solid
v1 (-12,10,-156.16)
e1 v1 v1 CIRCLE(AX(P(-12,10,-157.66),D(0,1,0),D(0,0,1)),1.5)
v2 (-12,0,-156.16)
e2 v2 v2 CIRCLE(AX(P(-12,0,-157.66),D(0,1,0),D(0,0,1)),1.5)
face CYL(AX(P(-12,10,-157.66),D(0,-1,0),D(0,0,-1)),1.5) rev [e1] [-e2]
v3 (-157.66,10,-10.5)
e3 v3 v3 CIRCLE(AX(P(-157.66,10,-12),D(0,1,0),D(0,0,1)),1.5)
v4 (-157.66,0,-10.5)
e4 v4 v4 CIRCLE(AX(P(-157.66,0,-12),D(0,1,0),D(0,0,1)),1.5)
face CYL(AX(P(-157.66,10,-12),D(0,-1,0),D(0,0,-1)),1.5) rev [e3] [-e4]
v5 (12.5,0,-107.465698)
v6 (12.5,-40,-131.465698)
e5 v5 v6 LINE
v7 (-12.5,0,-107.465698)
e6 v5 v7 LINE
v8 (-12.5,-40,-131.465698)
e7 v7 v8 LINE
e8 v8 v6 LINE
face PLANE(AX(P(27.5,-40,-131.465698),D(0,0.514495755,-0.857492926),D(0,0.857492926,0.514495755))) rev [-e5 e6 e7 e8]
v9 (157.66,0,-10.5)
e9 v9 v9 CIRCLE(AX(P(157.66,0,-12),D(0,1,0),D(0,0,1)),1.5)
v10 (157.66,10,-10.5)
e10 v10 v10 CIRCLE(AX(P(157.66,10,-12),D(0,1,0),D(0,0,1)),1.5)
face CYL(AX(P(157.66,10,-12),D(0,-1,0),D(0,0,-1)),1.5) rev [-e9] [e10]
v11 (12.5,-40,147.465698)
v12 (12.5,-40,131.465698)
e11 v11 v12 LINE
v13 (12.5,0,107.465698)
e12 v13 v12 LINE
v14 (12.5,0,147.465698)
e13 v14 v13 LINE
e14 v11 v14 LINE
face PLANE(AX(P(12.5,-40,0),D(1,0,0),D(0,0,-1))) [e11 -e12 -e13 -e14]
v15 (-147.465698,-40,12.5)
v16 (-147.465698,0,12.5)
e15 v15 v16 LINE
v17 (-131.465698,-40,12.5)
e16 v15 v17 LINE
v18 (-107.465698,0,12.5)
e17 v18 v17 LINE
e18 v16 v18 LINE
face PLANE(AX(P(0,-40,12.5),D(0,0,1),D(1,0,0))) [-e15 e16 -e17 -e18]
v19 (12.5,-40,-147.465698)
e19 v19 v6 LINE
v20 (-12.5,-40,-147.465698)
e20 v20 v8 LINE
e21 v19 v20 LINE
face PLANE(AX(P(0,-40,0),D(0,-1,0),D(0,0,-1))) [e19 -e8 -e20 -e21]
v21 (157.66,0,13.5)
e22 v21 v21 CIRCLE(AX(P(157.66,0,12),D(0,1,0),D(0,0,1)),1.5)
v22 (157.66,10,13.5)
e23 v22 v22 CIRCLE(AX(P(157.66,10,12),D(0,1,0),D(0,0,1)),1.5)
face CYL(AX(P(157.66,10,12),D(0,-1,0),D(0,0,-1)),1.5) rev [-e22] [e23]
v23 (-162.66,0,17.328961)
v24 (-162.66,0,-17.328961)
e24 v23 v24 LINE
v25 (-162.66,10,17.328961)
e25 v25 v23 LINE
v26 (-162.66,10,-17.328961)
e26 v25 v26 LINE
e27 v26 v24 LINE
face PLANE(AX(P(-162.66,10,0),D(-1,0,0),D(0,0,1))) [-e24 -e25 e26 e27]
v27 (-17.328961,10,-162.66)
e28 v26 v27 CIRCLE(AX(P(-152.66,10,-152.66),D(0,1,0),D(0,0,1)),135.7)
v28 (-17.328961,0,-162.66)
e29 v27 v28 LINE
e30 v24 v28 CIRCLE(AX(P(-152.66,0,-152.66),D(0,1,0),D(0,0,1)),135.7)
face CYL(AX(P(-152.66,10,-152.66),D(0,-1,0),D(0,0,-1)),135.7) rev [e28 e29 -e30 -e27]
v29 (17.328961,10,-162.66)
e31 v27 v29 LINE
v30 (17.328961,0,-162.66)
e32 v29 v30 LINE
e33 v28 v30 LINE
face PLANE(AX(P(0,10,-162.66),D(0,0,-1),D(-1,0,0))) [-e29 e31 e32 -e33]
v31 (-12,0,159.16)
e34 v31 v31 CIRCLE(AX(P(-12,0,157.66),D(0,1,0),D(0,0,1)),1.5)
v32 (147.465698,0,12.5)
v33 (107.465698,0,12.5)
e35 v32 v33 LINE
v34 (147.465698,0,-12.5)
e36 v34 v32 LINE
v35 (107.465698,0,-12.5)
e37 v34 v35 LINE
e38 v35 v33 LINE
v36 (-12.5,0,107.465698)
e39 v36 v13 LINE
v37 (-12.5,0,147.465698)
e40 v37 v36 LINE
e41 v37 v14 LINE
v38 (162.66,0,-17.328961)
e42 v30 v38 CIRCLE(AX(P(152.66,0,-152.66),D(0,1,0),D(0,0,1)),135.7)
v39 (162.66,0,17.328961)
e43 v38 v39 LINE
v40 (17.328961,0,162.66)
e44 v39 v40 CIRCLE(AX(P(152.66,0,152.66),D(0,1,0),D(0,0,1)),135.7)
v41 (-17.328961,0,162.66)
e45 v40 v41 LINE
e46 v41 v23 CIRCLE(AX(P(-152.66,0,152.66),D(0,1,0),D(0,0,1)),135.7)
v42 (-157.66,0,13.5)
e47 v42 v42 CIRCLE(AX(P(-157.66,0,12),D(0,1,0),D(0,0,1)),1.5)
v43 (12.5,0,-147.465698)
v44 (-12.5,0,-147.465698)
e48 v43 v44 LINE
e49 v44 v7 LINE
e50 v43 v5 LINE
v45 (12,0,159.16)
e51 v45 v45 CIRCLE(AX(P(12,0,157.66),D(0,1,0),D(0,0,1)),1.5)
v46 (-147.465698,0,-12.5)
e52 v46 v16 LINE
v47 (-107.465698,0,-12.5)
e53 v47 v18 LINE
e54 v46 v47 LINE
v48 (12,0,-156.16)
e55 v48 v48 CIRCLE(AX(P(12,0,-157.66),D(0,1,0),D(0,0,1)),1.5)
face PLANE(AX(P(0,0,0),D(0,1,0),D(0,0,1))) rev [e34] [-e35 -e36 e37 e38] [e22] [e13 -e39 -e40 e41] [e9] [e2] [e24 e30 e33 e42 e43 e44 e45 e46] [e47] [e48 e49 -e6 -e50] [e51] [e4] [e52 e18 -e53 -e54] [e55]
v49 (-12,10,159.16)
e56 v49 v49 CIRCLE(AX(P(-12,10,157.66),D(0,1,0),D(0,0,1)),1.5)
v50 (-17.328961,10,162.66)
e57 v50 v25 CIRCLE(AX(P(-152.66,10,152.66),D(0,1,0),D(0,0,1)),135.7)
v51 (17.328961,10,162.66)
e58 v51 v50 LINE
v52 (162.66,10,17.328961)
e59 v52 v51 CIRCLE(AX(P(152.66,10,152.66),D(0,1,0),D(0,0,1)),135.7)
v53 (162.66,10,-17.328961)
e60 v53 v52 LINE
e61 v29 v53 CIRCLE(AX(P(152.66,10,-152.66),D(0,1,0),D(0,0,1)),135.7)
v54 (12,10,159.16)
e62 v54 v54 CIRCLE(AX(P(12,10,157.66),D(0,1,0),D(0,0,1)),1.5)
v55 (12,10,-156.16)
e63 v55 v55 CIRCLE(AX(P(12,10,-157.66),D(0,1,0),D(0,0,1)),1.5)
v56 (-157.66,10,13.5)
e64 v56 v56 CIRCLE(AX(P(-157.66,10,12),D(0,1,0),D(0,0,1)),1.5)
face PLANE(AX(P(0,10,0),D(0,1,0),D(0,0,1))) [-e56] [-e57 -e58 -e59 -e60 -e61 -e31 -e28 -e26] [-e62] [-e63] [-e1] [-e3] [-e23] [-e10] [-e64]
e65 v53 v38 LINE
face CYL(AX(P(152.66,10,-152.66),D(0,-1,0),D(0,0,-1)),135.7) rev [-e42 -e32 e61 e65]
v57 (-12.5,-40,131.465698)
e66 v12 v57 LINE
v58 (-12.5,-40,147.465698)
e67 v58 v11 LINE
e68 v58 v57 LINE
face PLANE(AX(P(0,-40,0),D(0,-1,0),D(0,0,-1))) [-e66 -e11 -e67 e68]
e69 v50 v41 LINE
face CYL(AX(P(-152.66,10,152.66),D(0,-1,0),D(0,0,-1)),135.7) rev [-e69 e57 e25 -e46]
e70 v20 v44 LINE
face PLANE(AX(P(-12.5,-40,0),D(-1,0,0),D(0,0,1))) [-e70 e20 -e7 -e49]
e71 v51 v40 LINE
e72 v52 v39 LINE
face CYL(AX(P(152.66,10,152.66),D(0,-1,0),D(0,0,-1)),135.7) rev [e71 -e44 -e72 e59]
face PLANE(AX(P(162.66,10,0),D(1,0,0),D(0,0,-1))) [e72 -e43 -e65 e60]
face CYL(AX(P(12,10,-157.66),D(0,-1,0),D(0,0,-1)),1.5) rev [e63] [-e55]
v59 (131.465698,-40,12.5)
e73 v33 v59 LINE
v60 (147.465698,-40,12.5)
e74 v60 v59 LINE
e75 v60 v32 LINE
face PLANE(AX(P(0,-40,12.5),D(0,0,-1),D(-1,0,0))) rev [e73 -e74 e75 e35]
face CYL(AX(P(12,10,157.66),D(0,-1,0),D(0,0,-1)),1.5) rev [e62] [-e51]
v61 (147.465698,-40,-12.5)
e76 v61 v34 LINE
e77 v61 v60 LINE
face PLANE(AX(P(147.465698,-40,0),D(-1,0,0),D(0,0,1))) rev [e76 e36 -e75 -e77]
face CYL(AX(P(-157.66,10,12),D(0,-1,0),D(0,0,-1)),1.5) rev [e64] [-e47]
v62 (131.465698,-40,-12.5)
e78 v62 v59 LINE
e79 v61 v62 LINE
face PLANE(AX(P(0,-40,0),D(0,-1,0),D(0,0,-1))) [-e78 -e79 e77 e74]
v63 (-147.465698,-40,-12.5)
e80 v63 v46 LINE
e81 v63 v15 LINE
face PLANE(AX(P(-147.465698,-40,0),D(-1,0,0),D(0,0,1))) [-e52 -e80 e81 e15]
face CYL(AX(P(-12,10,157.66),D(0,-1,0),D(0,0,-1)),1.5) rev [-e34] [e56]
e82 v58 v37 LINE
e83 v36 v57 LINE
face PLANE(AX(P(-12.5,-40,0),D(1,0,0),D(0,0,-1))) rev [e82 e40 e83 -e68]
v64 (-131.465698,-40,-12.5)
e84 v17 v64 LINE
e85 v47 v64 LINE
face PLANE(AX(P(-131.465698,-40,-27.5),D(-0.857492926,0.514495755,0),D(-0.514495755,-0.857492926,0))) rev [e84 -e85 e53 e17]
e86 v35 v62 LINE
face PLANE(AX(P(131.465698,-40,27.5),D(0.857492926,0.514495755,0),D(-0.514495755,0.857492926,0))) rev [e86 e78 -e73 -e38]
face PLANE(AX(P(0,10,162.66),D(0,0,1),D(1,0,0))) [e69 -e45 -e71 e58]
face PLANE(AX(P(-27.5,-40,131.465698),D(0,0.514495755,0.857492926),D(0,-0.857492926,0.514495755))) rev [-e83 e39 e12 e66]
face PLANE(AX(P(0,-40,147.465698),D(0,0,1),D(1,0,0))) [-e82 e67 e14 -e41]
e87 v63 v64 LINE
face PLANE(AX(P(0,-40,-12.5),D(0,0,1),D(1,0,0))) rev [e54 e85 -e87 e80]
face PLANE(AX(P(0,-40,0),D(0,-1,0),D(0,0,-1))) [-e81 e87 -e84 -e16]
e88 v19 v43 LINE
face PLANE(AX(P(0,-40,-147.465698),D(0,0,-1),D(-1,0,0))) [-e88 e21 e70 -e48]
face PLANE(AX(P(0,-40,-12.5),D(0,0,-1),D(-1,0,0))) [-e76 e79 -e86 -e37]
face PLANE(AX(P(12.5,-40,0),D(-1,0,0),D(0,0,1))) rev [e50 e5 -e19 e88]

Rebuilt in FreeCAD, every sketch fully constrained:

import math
import FreeCAD as App
import Part
import Sketcher

V = App.Vector
Q = App.Units.Quantity

doc = App.newDocument("Part")
body = doc.addObject("PartDesign::Body", "Body")

sketch1 = body.newObject("Sketcher::SketchObject", "Sketch")
sketch1.AttachmentSupport = (doc.getObject("XZ_Plane"), [""])
sketch1.MapMode = "FlatFace"
sketch1.addGeometry([
    Part.LineSegment(V(162.7, 17.3, 0), V(162.7, -17.3, 0)),
    Part.ArcOfCircle(Part.Circle(V(152.7, -152.7, 0), V(0, 0, 1), 135.7), math.radians(86), math.radians(184)),
    Part.LineSegment(V(17.3, -162.7, 0), V(-17.3, -162.7, 0)),
    Part.ArcOfCircle(Part.Circle(V(-152.7, -152.7, 0), V(0, 0, 1), 135.7), math.radians(-4), math.radians(94)),
    Part.LineSegment(V(-162.7, -17.3, 0), V(-162.7, 17.3, 0)),
    Part.ArcOfCircle(Part.Circle(V(-152.7, 152.7, 0), V(0, 0, 1), 135.7), math.radians(-94), math.radians(4)),
    Part.LineSegment(V(-17.3, 162.7, 0), V(17.3, 162.7, 0)),
    Part.ArcOfCircle(Part.Circle(V(152.7, 152.7, 0), V(0, 0, 1), 135.7), math.radians(176), math.radians(274)),
    Part.Circle(V(-12, 157.7, 0), V(0, 0, 1), 1.5),
    Part.Circle(V(-157.7, 12, 0), V(0, 0, 1), 1.5),
    Part.Circle(V(12, 157.7, 0), V(0, 0, 1), 1.5),
    Part.Circle(V(157.7, 12, 0), V(0, 0, 1), 1.5),
    Part.Circle(V(-157.7, -12, 0), V(0, 0, 1), 1.5),
    Part.Circle(V(-12, -157.7, 0), V(0, 0, 1), 1.5),
    Part.Circle(V(157.7, -12, 0), V(0, 0, 1), 1.5),
    Part.Circle(V(12, -157.7, 0), V(0, 0, 1), 1.5),
], False)
sketch1.addConstraint([
    Sketcher.Constraint("Coincident", 0, 2, 1, 1),
    Sketcher.Constraint("Coincident", 1, 2, 2, 1),
    Sketcher.Constraint("Coincident", 2, 2, 3, 1),
    Sketcher.Constraint("Coincident", 3, 2, 4, 1),
    Sketcher.Constraint("Coincident", 4, 2, 5, 1),
    Sketcher.Constraint("Coincident", 5, 2, 6, 1),
    Sketcher.Constraint("Coincident", 6, 2, 7, 1),
    Sketcher.Constraint("Coincident", 7, 2, 0, 1),
    Sketcher.Constraint("Vertical", 0),
    Sketcher.Constraint("Horizontal", 2),
    Sketcher.Constraint("Vertical", 4),
    Sketcher.Constraint("Horizontal", 6),
    Sketcher.Constraint("Equal", 1, 3),
    Sketcher.Constraint("Equal", 3, 5),
    Sketcher.Constraint("Equal", 5, 7),
    Sketcher.Constraint("Equal", 8, 9),
    Sketcher.Constraint("Equal", 9, 10),
    Sketcher.Constraint("Equal", 10, 11),
    Sketcher.Constraint("Equal", 11, 12),
    Sketcher.Constraint("Equal", 12, 13),
    Sketcher.Constraint("Equal", 13, 14),
    Sketcher.Constraint("Equal", 14, 15),
    Sketcher.Constraint("Symmetric", 1, 3, 5, 3, -1, 1),
    Sketcher.Constraint("Symmetric", 3, 3, 7, 3, -1, 1),
    Sketcher.Constraint("Symmetric", 11, 3, 12, 3, -1, 1),
    Sketcher.Constraint("Symmetric", 10, 3, 13, 3, -1, 1),
    Sketcher.Constraint("Symmetric", 9, 3, 14, 3, -1, 1),
    Sketcher.Constraint("Symmetric", 8, 3, 15, 3, -1, 1),
    Sketcher.Constraint("Symmetric", 1, 3, 3, 3, -2),
    Sketcher.Constraint("Symmetric", 8, 3, 10, 3, -2),
    Sketcher.Constraint("Symmetric", 9, 3, 11, 3, -2),
    Sketcher.Constraint("Horizontal", 0, 2, 3, 2),
    Sketcher.Constraint("Vertical", 2, 2, 5, 2),
    Sketcher.Constraint("Equal", 6, 0),
    Sketcher.Constraint("Diameter", 8, Q("3 mm")),
    Sketcher.Constraint("Radius", 1, Q("135.7 mm")),
    Sketcher.Constraint("DistanceX", 8, 3, -1, 1, Q("12 mm")),
    Sketcher.Constraint("DistanceY", -1, 1, 9, 3, Q("12 mm")),
    Sketcher.Constraint("DistanceY", 5, 3, 8, 3, Q("5 mm")),
    Sketcher.Constraint("DistanceX", 9, 3, 5, 3, Q("5 mm")),
    Sketcher.Constraint("DistanceX", 14, 3, 0, 2, Q("5 mm")),
    Sketcher.Constraint("DistanceY", 1, 2, 15, 3, Q("5 mm")),
    Sketcher.Constraint("DistanceX", -1, 1, 1, 3, Q("152.66 mm")),
])
pad1 = body.newObject("PartDesign::Pad", "Pad")
pad1.Profile = sketch1
pad1.Length = 10
pad1.Reversed = True

sketch2 = body.newObject("Sketcher::SketchObject", "Sketch001")
sketch2.AttachmentSupport = (doc.getObject("XZ_Plane"), [""])
sketch2.MapMode = "FlatFace"
sketch2.addGeometry([
    Part.LineSegment(V(-12, 147, 0), V(-12, 107, 0)),
    Part.LineSegment(V(-12, 107, 0), V(12, 107, 0)),
    Part.LineSegment(V(12, 107, 0), V(12, 147, 0)),
    Part.LineSegment(V(12, 147, 0), V(-12, 147, 0)),
    Part.LineSegment(V(107, 12, 0), V(107, -12, 0)),
    Part.LineSegment(V(107, -12, 0), V(147, -12, 0)),
    Part.LineSegment(V(147, -12, 0), V(147, 12, 0)),
    Part.LineSegment(V(147, 12, 0), V(107, 12, 0)),
    Part.LineSegment(V(-12, -107, 0), V(-12, -147, 0)),
    Part.LineSegment(V(-12, -147, 0), V(12, -147, 0)),
    Part.LineSegment(V(12, -147, 0), V(12, -107, 0)),
    Part.LineSegment(V(12, -107, 0), V(-12, -107, 0)),
    Part.LineSegment(V(-147, 12, 0), V(-147, -12, 0)),
    Part.LineSegment(V(-147, -12, 0), V(-107, -12, 0)),
    Part.LineSegment(V(-107, -12, 0), V(-107, 12, 0)),
    Part.LineSegment(V(-107, 12, 0), V(-147, 12, 0)),
], False)
sketch2.addConstraint([
    Sketcher.Constraint("Coincident", 0, 2, 1, 1),
    Sketcher.Constraint("Coincident", 1, 2, 2, 1),
    Sketcher.Constraint("Coincident", 2, 2, 3, 1),
    Sketcher.Constraint("Coincident", 3, 2, 0, 1),
    Sketcher.Constraint("Coincident", 4, 2, 5, 1),
    Sketcher.Constraint("Coincident", 5, 2, 6, 1),
    Sketcher.Constraint("Coincident", 6, 2, 7, 1),
    Sketcher.Constraint("Coincident", 7, 2, 4, 1),
    Sketcher.Constraint("Coincident", 8, 2, 9, 1),
    Sketcher.Constraint("Coincident", 9, 2, 10, 1),
    Sketcher.Constraint("Coincident", 10, 2, 11, 1),
    Sketcher.Constraint("Coincident", 11, 2, 8, 1),
    Sketcher.Constraint("Coincident", 12, 2, 13, 1),
    Sketcher.Constraint("Coincident", 13, 2, 14, 1),
    Sketcher.Constraint("Coincident", 14, 2, 15, 1),
    Sketcher.Constraint("Coincident", 15, 2, 12, 1),
    Sketcher.Constraint("Vertical", 0),
    Sketcher.Constraint("Horizontal", 1),
    Sketcher.Constraint("Vertical", 2),
    Sketcher.Constraint("Horizontal", 3),
    Sketcher.Constraint("Vertical", 4),
    Sketcher.Constraint("Horizontal", 5),
    Sketcher.Constraint("Vertical", 6),
    Sketcher.Constraint("Horizontal", 7),
    Sketcher.Constraint("Vertical", 8),
    Sketcher.Constraint("Horizontal", 9),
    Sketcher.Constraint("Vertical", 10),
    Sketcher.Constraint("Horizontal", 11),
    Sketcher.Constraint("Vertical", 12),
    Sketcher.Constraint("Horizontal", 13),
    Sketcher.Constraint("Vertical", 14),
    Sketcher.Constraint("Horizontal", 15),
    Sketcher.Constraint("Symmetric", 2, 2, 8, 2, -1, 1),
    Sketcher.Constraint("Symmetric", 0, 2, 10, 2, -1, 1),
    Sketcher.Constraint("Symmetric", 6, 2, 12, 2, -1, 1),
    Sketcher.Constraint("Symmetric", 4, 2, 14, 2, -1, 1),
    Sketcher.Constraint("Horizontal", 5, 2, 12, 2),
    Sketcher.Constraint("Vertical", 3, 2, 8, 2),
    Sketcher.Constraint("Equal", 15, 0),
    Sketcher.Constraint("Equal", 11, 4),
    Sketcher.Constraint("DistanceX", 1, 1, 1, 2, Q("25 mm")),
    Sketcher.Constraint("DistanceX", 5, 1, 5, 2, Q("40 mm")),
    Sketcher.Constraint("DistanceY", -1, 1, 0, 2, Q("107.465698 mm")),
    Sketcher.Constraint("DistanceX", -1, 1, 4, 2, Q("107.465698 mm")),
])
pad2 = body.newObject("PartDesign::Pad", "Pad001")
pad2.Profile = sketch2
pad2.Length = 40

sketch3 = body.newObject("Sketcher::SketchObject", "Sketch002")
sketch3.AttachmentSupport = (doc.getObject("XY_Plane"), [""])
sketch3.MapMode = "FlatFace"
sketch3.AttachmentOffset = App.Placement(V(0, 0, -12.5), App.Rotation())
sketch3.addGeometry([
    Part.LineSegment(V(107, 0, 0), V(131, -40, 0)),
    Part.LineSegment(V(131, -40, 0), V(107, -40, 0)),
    Part.LineSegment(V(107, -40, 0), V(107, 0, 0)),
], False)
sketch3.addConstraint([
    Sketcher.Constraint("Coincident", 0, 2, 1, 1),
    Sketcher.Constraint("Coincident", 1, 2, 2, 1),
    Sketcher.Constraint("Coincident", 2, 2, 0, 1),
    Sketcher.Constraint("Horizontal", 1),
    Sketcher.Constraint("Vertical", 2),
    Sketcher.Constraint("PointOnObject", 2, 2, -1),
    Sketcher.Constraint("DistanceX", 1, 2, 1, 1, Q("24 mm")),
    Sketcher.Constraint("DistanceY", 2, 1, 2, 2, Q("40 mm")),
    Sketcher.Constraint("DistanceX", -1, 1, 0, 2, Q("131.465698 mm")),
])
pocket1 = body.newObject("PartDesign::Pocket", "Pocket")
pocket1.Profile = sketch3
pocket1.Length = 40
pocket1.Reversed = True
doc.recompute()

polarpattern = body.newObject("PartDesign::PolarPattern", "PolarPattern")
polarpattern.Originals = [pocket1]
polarpattern.Axis = (doc.getObject("Y_Axis"), [""])
polarpattern.Angle = 360
polarpattern.Occurrences = 4
body.Tip = polarpattern

doc.recompute()
